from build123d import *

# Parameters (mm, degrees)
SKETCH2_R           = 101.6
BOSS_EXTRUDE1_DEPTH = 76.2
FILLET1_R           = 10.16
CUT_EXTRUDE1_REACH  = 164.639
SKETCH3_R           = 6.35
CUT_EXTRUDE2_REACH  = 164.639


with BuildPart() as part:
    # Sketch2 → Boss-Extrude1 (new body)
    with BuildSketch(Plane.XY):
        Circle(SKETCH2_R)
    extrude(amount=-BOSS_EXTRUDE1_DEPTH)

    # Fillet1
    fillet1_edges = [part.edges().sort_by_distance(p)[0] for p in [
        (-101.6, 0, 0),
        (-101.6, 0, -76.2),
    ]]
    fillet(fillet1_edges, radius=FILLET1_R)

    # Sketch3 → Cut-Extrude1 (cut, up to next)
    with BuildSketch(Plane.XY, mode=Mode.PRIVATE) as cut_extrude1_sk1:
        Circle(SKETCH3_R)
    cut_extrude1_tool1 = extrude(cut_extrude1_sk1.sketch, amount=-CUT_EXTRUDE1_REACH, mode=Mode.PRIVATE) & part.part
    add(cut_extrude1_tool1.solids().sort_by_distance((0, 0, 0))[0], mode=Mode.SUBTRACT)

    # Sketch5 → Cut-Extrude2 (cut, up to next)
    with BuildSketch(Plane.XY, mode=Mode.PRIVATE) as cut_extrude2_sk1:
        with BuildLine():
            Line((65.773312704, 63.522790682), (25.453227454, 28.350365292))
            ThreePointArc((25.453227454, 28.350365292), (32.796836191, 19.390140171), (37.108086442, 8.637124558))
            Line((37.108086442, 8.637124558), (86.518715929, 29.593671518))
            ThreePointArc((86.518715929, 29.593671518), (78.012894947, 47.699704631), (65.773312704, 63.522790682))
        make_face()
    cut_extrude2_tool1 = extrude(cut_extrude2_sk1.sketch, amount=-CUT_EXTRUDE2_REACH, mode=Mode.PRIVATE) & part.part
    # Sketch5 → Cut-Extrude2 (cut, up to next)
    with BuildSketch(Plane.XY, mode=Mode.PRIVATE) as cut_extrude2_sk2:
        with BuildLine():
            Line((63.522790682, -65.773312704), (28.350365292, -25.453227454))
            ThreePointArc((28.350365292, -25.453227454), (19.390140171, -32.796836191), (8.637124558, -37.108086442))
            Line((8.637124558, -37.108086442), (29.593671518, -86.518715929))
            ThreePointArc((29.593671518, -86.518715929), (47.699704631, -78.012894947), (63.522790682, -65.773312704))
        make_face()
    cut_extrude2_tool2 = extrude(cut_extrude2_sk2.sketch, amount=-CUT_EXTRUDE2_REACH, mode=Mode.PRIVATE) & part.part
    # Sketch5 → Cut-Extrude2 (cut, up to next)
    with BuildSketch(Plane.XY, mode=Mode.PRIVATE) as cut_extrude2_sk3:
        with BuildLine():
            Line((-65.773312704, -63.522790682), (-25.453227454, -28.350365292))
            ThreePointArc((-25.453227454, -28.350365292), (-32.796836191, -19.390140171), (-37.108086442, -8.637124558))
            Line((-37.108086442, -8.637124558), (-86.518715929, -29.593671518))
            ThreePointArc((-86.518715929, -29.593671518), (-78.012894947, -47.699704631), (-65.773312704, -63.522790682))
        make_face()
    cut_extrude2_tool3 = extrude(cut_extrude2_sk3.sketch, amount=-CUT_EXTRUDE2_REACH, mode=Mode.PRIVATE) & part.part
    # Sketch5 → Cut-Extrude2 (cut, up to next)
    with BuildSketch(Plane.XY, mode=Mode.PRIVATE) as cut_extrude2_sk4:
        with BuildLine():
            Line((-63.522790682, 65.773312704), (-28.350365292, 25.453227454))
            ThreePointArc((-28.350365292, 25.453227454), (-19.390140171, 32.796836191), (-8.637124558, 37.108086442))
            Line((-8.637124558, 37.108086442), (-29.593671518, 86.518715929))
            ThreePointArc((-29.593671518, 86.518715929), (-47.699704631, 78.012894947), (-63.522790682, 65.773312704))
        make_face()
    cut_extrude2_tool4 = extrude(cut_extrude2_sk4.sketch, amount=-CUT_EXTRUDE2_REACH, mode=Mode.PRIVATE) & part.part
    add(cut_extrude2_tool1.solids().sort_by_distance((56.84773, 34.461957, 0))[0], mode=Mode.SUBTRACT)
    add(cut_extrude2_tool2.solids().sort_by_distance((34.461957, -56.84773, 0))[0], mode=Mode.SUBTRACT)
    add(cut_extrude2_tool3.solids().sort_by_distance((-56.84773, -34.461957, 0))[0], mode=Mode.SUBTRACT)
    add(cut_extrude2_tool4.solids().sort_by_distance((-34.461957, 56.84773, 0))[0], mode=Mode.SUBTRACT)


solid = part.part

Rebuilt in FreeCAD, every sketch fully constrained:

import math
import FreeCAD as App
import Part
import Sketcher
Q = App.Units.Quantity


def edges_at(feature, points):
    """Names of the edges that pass closest to the given points."""
    edges = feature.Shape.Edges
    near = lambda p: min(range(len(edges)), key=lambda i: edges[i].distToShape(Part.Vertex(*p))[0])
    return sorted({f"Edge{near(p) + 1}" for p in points})

doc = App.newDocument("Part")
body = doc.addObject("PartDesign::Body", "Body")

# Sketch on XY plane
sketch1 = body.newObject("Sketcher::SketchObject", "Sketch")
sketch1.AttachmentSupport = (doc.getObject("XY_Plane"), [""])
sketch1.MapMode = "FlatFace"
sketch1.addGeometry(Part.Circle(App.Vector(0, 0, 0), App.Vector(0, 0, 1), 102), False)
sketch1.addConstraint([
    Sketcher.Constraint("Coincident", 0, 3, -1, 1),
    Sketcher.Constraint("Diameter", 0, Q("8 in")),
])
pad1 = body.newObject("PartDesign::Pad", "Pad")
pad1.Profile = sketch1
pad1.Length = Q("3 in")
pad1.Reversed = True
doc.recompute()

fillet = body.newObject("PartDesign::Fillet", "Fillet")
fillet.Base = (pad1, edges_at(pad1, [(-101.6, 0, 0), (-101.6, 0, -76.2)]))
fillet.Radius = Q("0.4 in")

# Sketch on XY plane
sketch2 = body.newObject("Sketcher::SketchObject", "Sketch001")
sketch2.AttachmentSupport = (doc.getObject("XY_Plane"), [""])
sketch2.MapMode = "FlatFace"
sketch2.addGeometry(Part.Circle(App.Vector(0, 0, 0), App.Vector(0, 0, 1), 6), False)
sketch2.addConstraint([
    Sketcher.Constraint("Coincident", 0, 3, -1, 1),
    Sketcher.Constraint("Diameter", 0, Q("0.5 in")),
])
pocket1 = body.newObject("PartDesign::Pocket", "Pocket")
pocket1.Profile = sketch2
pocket1.Type = "UpToFirst"

# Sketch on XY plane
sketch3 = body.newObject("Sketcher::SketchObject", "Sketch002")
sketch3.AttachmentSupport = (doc.getObject("XY_Plane"), [""])
sketch3.MapMode = "FlatFace"
sketch3.addGeometry([
    Part.LineSegment(App.Vector(66, 64, 0), App.Vector(25, 28, 0)),
    Part.ArcOfCircle(Part.Circle(App.Vector(0, 0, 0), App.Vector(0, 0, 1), 38), math.radians(13), math.radians(48)),
    Part.LineSegment(App.Vector(37, 9, 0), App.Vector(87, 30, 0)),
    Part.ArcOfCircle(Part.Circle(App.Vector(0, 0, 0), App.Vector(0, 0, 1), 91), math.radians(19), math.radians(44)),
], False)
sketch3.addConstraint([
    Sketcher.Constraint("Coincident", 0, 2, 1, 2),
    Sketcher.Constraint("Coincident", 1, 1, 2, 1),
    Sketcher.Constraint("Coincident", 2, 2, 3, 1),
    Sketcher.Constraint("Coincident", 3, 2, 0, 1),
    Sketcher.Constraint("Coincident", 1, 3, -1, 1),
    Sketcher.Constraint("Coincident", 3, 3, -1, 1),
    Sketcher.Constraint("Radius", 1, Q("1.5 in")),
    Sketcher.Constraint("Radius", 3, Q("3.6 in")),
    Sketcher.Constraint("Distance", 2, Q("53.671102 mm")),
    Sketcher.Constraint("DistanceY", -1, 1, 2, 2, Q("29.593672 mm")),
    Sketcher.Constraint("DistanceY", -1, 1, 3, 2, Q("63.522791 mm")),
    Sketcher.Constraint("DistanceX", 0, 2, 1, 1, Q("11.654859 mm")),
])
pocket2 = body.newObject("PartDesign::Pocket", "Pocket001")
pocket2.Profile = sketch3
pocket2.Type = "UpToFirst"

# Sketch on XY plane
sketch4 = body.newObject("Sketcher::SketchObject", "Sketch003")
sketch4.AttachmentSupport = (doc.getObject("XY_Plane"), [""])
sketch4.MapMode = "FlatFace"
sketch4.addGeometry([
    Part.LineSegment(App.Vector(64, -66, 0), App.Vector(28, -25, 0)),
    Part.ArcOfCircle(Part.Circle(App.Vector(0, 0, 0), App.Vector(0, 0, 1), 38), math.radians(-77), math.radians(-42)),
    Part.LineSegment(App.Vector(9, -37, 0), App.Vector(30, -87, 0)),
    Part.ArcOfCircle(Part.Circle(App.Vector(0, 0, 0), App.Vector(0, 0, 1), 91), math.radians(-71), math.radians(-46)),
], False)
sketch4.addConstraint([
    Sketcher.Constraint("Coincident", 0, 2, 1, 2),
    Sketcher.Constraint("Coincident", 1, 1, 2, 1),
    Sketcher.Constraint("Coincident", 2, 2, 3, 1),
    Sketcher.Constraint("Coincident", 3, 2, 0, 1),
    Sketcher.Constraint("Coincident", 1, 3, -1, 1),
    Sketcher.Constraint("Coincident", 3, 3, -1, 1),
    Sketcher.Constraint("Radius", 1, Q("1.5 in")),
    Sketcher.Constraint("Radius", 3, Q("3.6 in")),
    Sketcher.Constraint("Distance", 2, Q("53.671102 mm")),
    Sketcher.Constraint("DistanceX", -1, 1, 2, 2, Q("29.593672 mm")),
    Sketcher.Constraint("DistanceX", -1, 1, 3, 2, Q("63.522791 mm")),
    Sketcher.Constraint("DistanceX", 1, 1, 0, 2, Q("19.713241 mm")),
])
pocket3 = body.newObject("PartDesign::Pocket", "Pocket002")
pocket3.Profile = sketch4
pocket3.Type = "UpToFirst"

# Sketch on XY plane
sketch5 = body.newObject("Sketcher::SketchObject", "Sketch004")
sketch5.AttachmentSupport = (doc.getObject("XY_Plane"), [""])
sketch5.MapMode = "FlatFace"
sketch5.addGeometry([
    Part.LineSegment(App.Vector(-66, -64, 0), App.Vector(-25, -28, 0)),
    Part.ArcOfCircle(Part.Circle(App.Vector(0, 0, 0), App.Vector(0, 0, 1), 38), math.radians(-167), math.radians(-132)),
    Part.LineSegment(App.Vector(-37, -9, 0), App.Vector(-87, -30, 0)),
    Part.ArcOfCircle(Part.Circle(App.Vector(0, 0, 0), App.Vector(0, 0, 1), 91), math.radians(-161), math.radians(-136)),
], False)
sketch5.addConstraint([
    Sketcher.Constraint("Coincident", 0, 2, 1, 2),
    Sketcher.Constraint("Coincident", 1, 1, 2, 1),
    Sketcher.Constraint("Coincident", 2, 2, 3, 1),
    Sketcher.Constraint("Coincident", 3, 2, 0, 1),
    Sketcher.Constraint("Coincident", 1, 3, -1, 1),
    Sketcher.Constraint("Coincident", 3, 3, -1, 1),
    Sketcher.Constraint("Radius", 1, Q("1.5 in")),
    Sketcher.Constraint("Radius", 3, Q("3.6 in")),
    Sketcher.Constraint("Distance", 2, Q("53.671102 mm")),
    Sketcher.Constraint("DistanceY", 2, 2, -1, 1, Q("29.593672 mm")),
    Sketcher.Constraint("DistanceY", 3, 2, -1, 1, Q("63.522791 mm")),
    Sketcher.Constraint("DistanceX", 1, 1, 0, 2, Q("11.654859 mm")),
])
pocket4 = body.newObject("PartDesign::Pocket", "Pocket003")
pocket4.Profile = sketch5
pocket4.Type = "UpToFirst"

# Sketch on XY plane
sketch6 = body.newObject("Sketcher::SketchObject", "Sketch005")
sketch6.AttachmentSupport = (doc.getObject("XY_Plane"), [""])
sketch6.MapMode = "FlatFace"
sketch6.addGeometry([
    Part.LineSegment(App.Vector(-64, 66, 0), App.Vector(-28, 25, 0)),
    Part.ArcOfCircle(Part.Circle(App.Vector(0, 0, 0), App.Vector(0, 0, 1), 38), math.radians(103), math.radians(138)),
    Part.LineSegment(App.Vector(-9, 37, 0), App.Vector(-30, 87, 0)),
    Part.ArcOfCircle(Part.Circle(App.Vector(0, 0, 0), App.Vector(0, 0, 1), 91), math.radians(109), math.radians(134)),
], False)
sketch6.addConstraint([
    Sketcher.Constraint("Coincident", 0, 2, 1, 2),
    Sketcher.Constraint("Coincident", 1, 1, 2, 1),
    Sketcher.Constraint("Coincident", 2, 2, 3, 1),
    Sketcher.Constraint("Coincident", 3, 2, 0, 1),
    Sketcher.Constraint("Coincident", 1, 3, -1, 1),
    Sketcher.Constraint("Coincident", 3, 3, -1, 1),
    Sketcher.Constraint("Radius", 1, Q("1.5 in")),
    Sketcher.Constraint("Radius", 3, Q("3.6 in")),
    Sketcher.Constraint("Distance", 2, Q("53.671102 mm")),
    Sketcher.Constraint("DistanceX", 2, 2, -1, 1, Q("29.593672 mm")),
    Sketcher.Constraint("DistanceX", 3, 2, -1, 1, Q("63.522791 mm")),
    Sketcher.Constraint("DistanceX", 0, 2, 1, 1, Q("19.713241 mm")),
])
pocket5 = body.newObject("PartDesign::Pocket", "Pocket004")
pocket5.Profile = sketch6
pocket5.Type = "UpToFirst"

doc.recompute()
